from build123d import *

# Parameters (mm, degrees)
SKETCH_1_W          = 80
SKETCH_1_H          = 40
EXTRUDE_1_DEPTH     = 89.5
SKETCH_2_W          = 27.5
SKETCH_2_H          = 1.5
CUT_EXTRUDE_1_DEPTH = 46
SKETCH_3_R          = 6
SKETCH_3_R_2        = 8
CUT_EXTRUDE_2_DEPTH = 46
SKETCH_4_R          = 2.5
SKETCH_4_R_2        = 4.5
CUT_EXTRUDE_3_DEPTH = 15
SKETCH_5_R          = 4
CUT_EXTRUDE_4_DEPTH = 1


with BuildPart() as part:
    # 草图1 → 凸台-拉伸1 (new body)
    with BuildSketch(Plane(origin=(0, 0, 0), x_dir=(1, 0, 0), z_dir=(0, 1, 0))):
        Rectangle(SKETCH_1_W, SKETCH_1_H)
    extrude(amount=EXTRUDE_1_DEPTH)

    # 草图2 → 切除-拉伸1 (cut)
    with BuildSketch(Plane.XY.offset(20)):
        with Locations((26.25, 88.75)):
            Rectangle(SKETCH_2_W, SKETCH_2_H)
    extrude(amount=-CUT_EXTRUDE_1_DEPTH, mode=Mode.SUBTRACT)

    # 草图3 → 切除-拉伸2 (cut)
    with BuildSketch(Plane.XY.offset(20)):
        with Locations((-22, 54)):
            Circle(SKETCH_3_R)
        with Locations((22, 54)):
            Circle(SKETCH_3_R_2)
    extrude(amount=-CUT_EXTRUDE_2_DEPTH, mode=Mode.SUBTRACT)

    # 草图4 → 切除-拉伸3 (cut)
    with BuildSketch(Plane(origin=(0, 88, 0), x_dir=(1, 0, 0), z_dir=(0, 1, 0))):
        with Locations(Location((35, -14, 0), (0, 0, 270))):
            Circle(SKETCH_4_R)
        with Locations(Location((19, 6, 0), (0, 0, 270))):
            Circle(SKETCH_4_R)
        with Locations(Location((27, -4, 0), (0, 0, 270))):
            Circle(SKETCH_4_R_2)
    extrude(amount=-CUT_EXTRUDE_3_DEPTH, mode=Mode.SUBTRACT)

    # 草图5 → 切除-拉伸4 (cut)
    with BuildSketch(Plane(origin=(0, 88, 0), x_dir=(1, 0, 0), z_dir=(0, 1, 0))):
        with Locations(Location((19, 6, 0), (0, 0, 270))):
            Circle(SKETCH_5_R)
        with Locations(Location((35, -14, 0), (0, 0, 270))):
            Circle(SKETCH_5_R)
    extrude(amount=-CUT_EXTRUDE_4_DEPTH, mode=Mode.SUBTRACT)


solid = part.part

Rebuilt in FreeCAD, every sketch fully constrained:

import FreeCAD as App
import Part
import Sketcher
from FreeCAD import Vector


def add_polygon(sketch, points):
    """Adds a closed chain of lines whose ends are joined by coincident constraints."""
    first, n = sketch.GeometryCount, len(points)
    for a, b in zip(points, points[1:] + points[:1]):
        sketch.addGeometry(Part.LineSegment(App.Vector(*a, 0), App.Vector(*b, 0)), False)
    for i in range(n):
        sketch.addConstraint(Sketcher.Constraint("Coincident", first + i, 2, first + (i + 1) % n, 1))

doc = App.newDocument("Part")
body = doc.addObject("PartDesign::Body", "Body")

# Sketch on XZ plane
sketch1 = body.newObject("Sketcher::SketchObject", "Sketch")
sketch1.AttachmentSupport = (doc.getObject("XZ_Plane"), [""])
sketch1.MapMode = "FlatFace"
add_polygon(sketch1, [(-40, -20), (-40, 20), (40, 20), (40, -20)])  # lines 0-3
sketch1.addConstraint(Sketcher.Constraint("Vertical", 0))
sketch1.addConstraint(Sketcher.Constraint("Horizontal", 1))
sketch1.addConstraint(Sketcher.Constraint("Vertical", 2))
sketch1.addConstraint(Sketcher.Constraint("Horizontal", 3))
sketch1.addConstraint(Sketcher.Constraint("Symmetric", 0, 2, 2, 2, -1, 1))
sketch1.addConstraint(Sketcher.Constraint("DistanceX", 1, 1, 1, 2, 80.0))
sketch1.addConstraint(Sketcher.Constraint("DistanceY", 0, 1, 0, 2, 40.0))
pad1 = body.newObject("PartDesign::Pad", "Pad")
pad1.Profile = sketch1
pad1.Length = 89.5
pad1.Reversed = True

# Sketch on XY plane
sketch2 = body.newObject("Sketcher::SketchObject", "Sketch001")
sketch2.AttachmentSupport = (doc.getObject("XY_Plane"), [""])
sketch2.MapMode = "FlatFace"
sketch2.AttachmentOffset = App.Placement(Vector(0, 0, 20), App.Rotation())
add_polygon(sketch2, [(12.5, 89.5), (12.5, 88), (40, 88), (40, 89.5)])  # lines 0-3
sketch2.addConstraint(Sketcher.Constraint("Vertical", 0))
sketch2.addConstraint(Sketcher.Constraint("Horizontal", 1))
sketch2.addConstraint(Sketcher.Constraint("Vertical", 2))
sketch2.addConstraint(Sketcher.Constraint("Horizontal", 3))
sketch2.addConstraint(Sketcher.Constraint("DistanceX", 1, 1, 1, 2, 27.5))
sketch2.addConstraint(Sketcher.Constraint("DistanceY", 0, 2, 0, 1, 1.5))
sketch2.addConstraint(Sketcher.Constraint("DistanceY", -1, 1, 0, 2, 88.0))
sketch2.addConstraint(Sketcher.Constraint("DistanceX", -1, 1, 1, 2, 40.0))
pocket1 = body.newObject("PartDesign::Pocket", "Pocket")
pocket1.Profile = sketch2
pocket1.Length = 46

# Sketch on XY plane
sketch3 = body.newObject("Sketcher::SketchObject", "Sketch002")
sketch3.AttachmentSupport = (doc.getObject("XY_Plane"), [""])
sketch3.MapMode = "FlatFace"
sketch3.AttachmentOffset = App.Placement(Vector(0, 0, 20), App.Rotation())
sketch3.addGeometry(Part.Circle(Vector(-22, 54, 0), Vector(0, 0, 1), 6), False)
sketch3.addGeometry(Part.Circle(Vector(22, 54, 0), Vector(0, 0, 1), 8), False)
sketch3.addConstraint(Sketcher.Constraint("Symmetric", 0, 3, 1, 3, -2))
sketch3.addConstraint(Sketcher.Constraint("Diameter", 0, 12.0))
sketch3.addConstraint(Sketcher.Constraint("Diameter", 1, 16.0))
sketch3.addConstraint(Sketcher.Constraint("DistanceX", 0, 3, -1, 1, 22.0))
sketch3.addConstraint(Sketcher.Constraint("DistanceY", -1, 1, 0, 3, 54.0))
pocket2 = body.newObject("PartDesign::Pocket", "Pocket001")
pocket2.Profile = sketch3
pocket2.Length = 46

# Sketch on XZ plane
sketch4 = body.newObject("Sketcher::SketchObject", "Sketch003")
sketch4.AttachmentSupport = (doc.getObject("XZ_Plane"), [""])
sketch4.MapMode = "FlatFace"
sketch4.AttachmentOffset = App.Placement(Vector(0, 0, -88), App.Rotation())
sketch4.addGeometry(Part.Circle(Vector(35, 14, 0), Vector(0, 0, 1), 2.5), False)
sketch4.addGeometry(Part.Circle(Vector(19, -6, 0), Vector(0, 0, 1), 2.5), False)
sketch4.addGeometry(Part.Circle(Vector(27, 4, 0), Vector(0, 0, 1), 4.5), False)
sketch4.addConstraint(Sketcher.Constraint("Equal", 0, 1))
sketch4.addConstraint(Sketcher.Constraint("Diameter", 0, 5.0))
sketch4.addConstraint(Sketcher.Constraint("Diameter", 2, 9.0))
sketch4.addConstraint(Sketcher.Constraint("DistanceX", -1, 1, 0, 3, 35.0))
sketch4.addConstraint(Sketcher.Constraint("DistanceY", -1, 1, 0, 3, 14.0))
sketch4.addConstraint(Sketcher.Constraint("DistanceX", -1, 1, 1, 3, 19.0))
sketch4.addConstraint(Sketcher.Constraint("DistanceY", 1, 3, -1, 1, 6.0))
sketch4.addConstraint(Sketcher.Constraint("DistanceX", -1, 1, 2, 3, 27.0))
sketch4.addConstraint(Sketcher.Constraint("DistanceY", -1, 1, 2, 3, 4.0))
pocket3 = body.newObject("PartDesign::Pocket", "Pocket002")
pocket3.Profile = sketch4
pocket3.Length = 15
pocket3.Reversed = True

# Sketch on XZ plane
sketch5 = body.newObject("Sketcher::SketchObject", "Sketch004")
sketch5.AttachmentSupport = (doc.getObject("XZ_Plane"), [""])
sketch5.MapMode = "FlatFace"
sketch5.AttachmentOffset = App.Placement(Vector(0, 0, -88), App.Rotation())
sketch5.addGeometry(Part.Circle(Vector(19, -6, 0), Vector(0, 0, 1), 4), False)
sketch5.addGeometry(Part.Circle(Vector(35, 14, 0), Vector(0, 0, 1), 4), False)
sketch5.addConstraint(Sketcher.Constraint("Equal", 0, 1))
sketch5.addConstraint(Sketcher.Constraint("Diameter", 0, 8.0))
sketch5.addConstraint(Sketcher.Constraint("DistanceX", -1, 1, 0, 3, 19.0))
sketch5.addConstraint(Sketcher.Constraint("DistanceY", 0, 3, -1, 1, 6.0))
sketch5.addConstraint(Sketcher.Constraint("DistanceX", -1, 1, 1, 3, 35.0))
sketch5.addConstraint(Sketcher.Constraint("DistanceY", -1, 1, 1, 3, 14.0))
pocket4 = body.newObject("PartDesign::Pocket", "Pocket003")
pocket4.Profile = sketch5
pocket4.Length = 1
pocket4.Reversed = True

doc.recompute()
